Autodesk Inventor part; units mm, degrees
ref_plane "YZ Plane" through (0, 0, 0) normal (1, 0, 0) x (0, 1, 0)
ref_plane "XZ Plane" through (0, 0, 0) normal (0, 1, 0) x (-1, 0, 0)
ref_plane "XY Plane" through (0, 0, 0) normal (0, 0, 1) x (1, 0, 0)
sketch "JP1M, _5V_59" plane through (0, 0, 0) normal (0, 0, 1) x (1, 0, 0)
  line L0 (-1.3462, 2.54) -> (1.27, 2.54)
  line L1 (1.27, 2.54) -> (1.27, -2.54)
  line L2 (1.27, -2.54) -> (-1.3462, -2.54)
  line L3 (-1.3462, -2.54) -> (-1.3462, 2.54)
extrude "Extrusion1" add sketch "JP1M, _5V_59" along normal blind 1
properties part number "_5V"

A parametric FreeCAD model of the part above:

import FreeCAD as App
import Part
import Sketcher
Q = App.Units.Quantity

doc = App.newDocument("Part")
params = doc.addObject("Spreadsheet::Sheet", "Params")
for row, (alias, value) in enumerate([
    ("sketch1_height", "0.2 in"),
    ("sketch1_width", "0.103 in"),
    ("pad1_length", "1 mm"),
], start=1):
    params.set(f"A{row}", alias)
    params.set(f"B{row}", "=" + value)
    params.setAlias(f"B{row}", alias)

body = doc.addObject("PartDesign::Body", "Body")

# Sketch on XY plane
sketch1 = body.newObject("Sketcher::SketchObject", "Sketch")
sketch1.AttachmentSupport = (doc.getObject("XY_Plane"), [""])
sketch1.MapMode = "FlatFace"
sketch1.addGeometry(Part.LineSegment(App.Vector(1.3, 2.5, 0), App.Vector(-1.3, 2.5, 0)), False)
sketch1.addGeometry(Part.LineSegment(App.Vector(-1.3, 2.5, 0), App.Vector(-1.3, -2.5, 0)), False)
sketch1.addGeometry(Part.LineSegment(App.Vector(-1.3, -2.5, 0), App.Vector(1.3, -2.5, 0)), False)
sketch1.addGeometry(Part.LineSegment(App.Vector(1.3, -2.5, 0), App.Vector(1.3, 2.5, 0)), False)
sketch1.addConstraint(Sketcher.Constraint("Coincident", 0, 2, 1, 1))
sketch1.addConstraint(Sketcher.Constraint("Coincident", 1, 2, 2, 1))
sketch1.addConstraint(Sketcher.Constraint("Coincident", 2, 2, 3, 1))
sketch1.addConstraint(Sketcher.Constraint("Coincident", 3, 2, 0, 1))
sketch1.addConstraint(Sketcher.Constraint("Horizontal", 0))
sketch1.addConstraint(Sketcher.Constraint("Vertical", 1))
sketch1.addConstraint(Sketcher.Constraint("Horizontal", 2))
sketch1.addConstraint(Sketcher.Constraint("Vertical", 3))
sketch1.addConstraint(Sketcher.Constraint("DistanceY", 1, 2, 1, 1, Q("0.2 in")))
sketch1.addConstraint(Sketcher.Constraint("DistanceY", -1, 1, 0, 2, Q("0.1 in")))
sketch1.addConstraint(Sketcher.Constraint("DistanceX", 0, 2, 0, 1, Q("0.103 in")))
sketch1.addConstraint(Sketcher.Constraint("DistanceX", -1, 1, 2, 2, Q("0.05 in")))
sketch1.setExpression("Constraints[8]", "Params.sketch1_height")
sketch1.setExpression("Constraints[10]", "Params.sketch1_width")
pad1 = body.newObject("PartDesign::Pad", "Pad")
pad1.Profile = sketch1
pad1.setExpression("Length", "Params.pad1_length")

doc.recompute()
